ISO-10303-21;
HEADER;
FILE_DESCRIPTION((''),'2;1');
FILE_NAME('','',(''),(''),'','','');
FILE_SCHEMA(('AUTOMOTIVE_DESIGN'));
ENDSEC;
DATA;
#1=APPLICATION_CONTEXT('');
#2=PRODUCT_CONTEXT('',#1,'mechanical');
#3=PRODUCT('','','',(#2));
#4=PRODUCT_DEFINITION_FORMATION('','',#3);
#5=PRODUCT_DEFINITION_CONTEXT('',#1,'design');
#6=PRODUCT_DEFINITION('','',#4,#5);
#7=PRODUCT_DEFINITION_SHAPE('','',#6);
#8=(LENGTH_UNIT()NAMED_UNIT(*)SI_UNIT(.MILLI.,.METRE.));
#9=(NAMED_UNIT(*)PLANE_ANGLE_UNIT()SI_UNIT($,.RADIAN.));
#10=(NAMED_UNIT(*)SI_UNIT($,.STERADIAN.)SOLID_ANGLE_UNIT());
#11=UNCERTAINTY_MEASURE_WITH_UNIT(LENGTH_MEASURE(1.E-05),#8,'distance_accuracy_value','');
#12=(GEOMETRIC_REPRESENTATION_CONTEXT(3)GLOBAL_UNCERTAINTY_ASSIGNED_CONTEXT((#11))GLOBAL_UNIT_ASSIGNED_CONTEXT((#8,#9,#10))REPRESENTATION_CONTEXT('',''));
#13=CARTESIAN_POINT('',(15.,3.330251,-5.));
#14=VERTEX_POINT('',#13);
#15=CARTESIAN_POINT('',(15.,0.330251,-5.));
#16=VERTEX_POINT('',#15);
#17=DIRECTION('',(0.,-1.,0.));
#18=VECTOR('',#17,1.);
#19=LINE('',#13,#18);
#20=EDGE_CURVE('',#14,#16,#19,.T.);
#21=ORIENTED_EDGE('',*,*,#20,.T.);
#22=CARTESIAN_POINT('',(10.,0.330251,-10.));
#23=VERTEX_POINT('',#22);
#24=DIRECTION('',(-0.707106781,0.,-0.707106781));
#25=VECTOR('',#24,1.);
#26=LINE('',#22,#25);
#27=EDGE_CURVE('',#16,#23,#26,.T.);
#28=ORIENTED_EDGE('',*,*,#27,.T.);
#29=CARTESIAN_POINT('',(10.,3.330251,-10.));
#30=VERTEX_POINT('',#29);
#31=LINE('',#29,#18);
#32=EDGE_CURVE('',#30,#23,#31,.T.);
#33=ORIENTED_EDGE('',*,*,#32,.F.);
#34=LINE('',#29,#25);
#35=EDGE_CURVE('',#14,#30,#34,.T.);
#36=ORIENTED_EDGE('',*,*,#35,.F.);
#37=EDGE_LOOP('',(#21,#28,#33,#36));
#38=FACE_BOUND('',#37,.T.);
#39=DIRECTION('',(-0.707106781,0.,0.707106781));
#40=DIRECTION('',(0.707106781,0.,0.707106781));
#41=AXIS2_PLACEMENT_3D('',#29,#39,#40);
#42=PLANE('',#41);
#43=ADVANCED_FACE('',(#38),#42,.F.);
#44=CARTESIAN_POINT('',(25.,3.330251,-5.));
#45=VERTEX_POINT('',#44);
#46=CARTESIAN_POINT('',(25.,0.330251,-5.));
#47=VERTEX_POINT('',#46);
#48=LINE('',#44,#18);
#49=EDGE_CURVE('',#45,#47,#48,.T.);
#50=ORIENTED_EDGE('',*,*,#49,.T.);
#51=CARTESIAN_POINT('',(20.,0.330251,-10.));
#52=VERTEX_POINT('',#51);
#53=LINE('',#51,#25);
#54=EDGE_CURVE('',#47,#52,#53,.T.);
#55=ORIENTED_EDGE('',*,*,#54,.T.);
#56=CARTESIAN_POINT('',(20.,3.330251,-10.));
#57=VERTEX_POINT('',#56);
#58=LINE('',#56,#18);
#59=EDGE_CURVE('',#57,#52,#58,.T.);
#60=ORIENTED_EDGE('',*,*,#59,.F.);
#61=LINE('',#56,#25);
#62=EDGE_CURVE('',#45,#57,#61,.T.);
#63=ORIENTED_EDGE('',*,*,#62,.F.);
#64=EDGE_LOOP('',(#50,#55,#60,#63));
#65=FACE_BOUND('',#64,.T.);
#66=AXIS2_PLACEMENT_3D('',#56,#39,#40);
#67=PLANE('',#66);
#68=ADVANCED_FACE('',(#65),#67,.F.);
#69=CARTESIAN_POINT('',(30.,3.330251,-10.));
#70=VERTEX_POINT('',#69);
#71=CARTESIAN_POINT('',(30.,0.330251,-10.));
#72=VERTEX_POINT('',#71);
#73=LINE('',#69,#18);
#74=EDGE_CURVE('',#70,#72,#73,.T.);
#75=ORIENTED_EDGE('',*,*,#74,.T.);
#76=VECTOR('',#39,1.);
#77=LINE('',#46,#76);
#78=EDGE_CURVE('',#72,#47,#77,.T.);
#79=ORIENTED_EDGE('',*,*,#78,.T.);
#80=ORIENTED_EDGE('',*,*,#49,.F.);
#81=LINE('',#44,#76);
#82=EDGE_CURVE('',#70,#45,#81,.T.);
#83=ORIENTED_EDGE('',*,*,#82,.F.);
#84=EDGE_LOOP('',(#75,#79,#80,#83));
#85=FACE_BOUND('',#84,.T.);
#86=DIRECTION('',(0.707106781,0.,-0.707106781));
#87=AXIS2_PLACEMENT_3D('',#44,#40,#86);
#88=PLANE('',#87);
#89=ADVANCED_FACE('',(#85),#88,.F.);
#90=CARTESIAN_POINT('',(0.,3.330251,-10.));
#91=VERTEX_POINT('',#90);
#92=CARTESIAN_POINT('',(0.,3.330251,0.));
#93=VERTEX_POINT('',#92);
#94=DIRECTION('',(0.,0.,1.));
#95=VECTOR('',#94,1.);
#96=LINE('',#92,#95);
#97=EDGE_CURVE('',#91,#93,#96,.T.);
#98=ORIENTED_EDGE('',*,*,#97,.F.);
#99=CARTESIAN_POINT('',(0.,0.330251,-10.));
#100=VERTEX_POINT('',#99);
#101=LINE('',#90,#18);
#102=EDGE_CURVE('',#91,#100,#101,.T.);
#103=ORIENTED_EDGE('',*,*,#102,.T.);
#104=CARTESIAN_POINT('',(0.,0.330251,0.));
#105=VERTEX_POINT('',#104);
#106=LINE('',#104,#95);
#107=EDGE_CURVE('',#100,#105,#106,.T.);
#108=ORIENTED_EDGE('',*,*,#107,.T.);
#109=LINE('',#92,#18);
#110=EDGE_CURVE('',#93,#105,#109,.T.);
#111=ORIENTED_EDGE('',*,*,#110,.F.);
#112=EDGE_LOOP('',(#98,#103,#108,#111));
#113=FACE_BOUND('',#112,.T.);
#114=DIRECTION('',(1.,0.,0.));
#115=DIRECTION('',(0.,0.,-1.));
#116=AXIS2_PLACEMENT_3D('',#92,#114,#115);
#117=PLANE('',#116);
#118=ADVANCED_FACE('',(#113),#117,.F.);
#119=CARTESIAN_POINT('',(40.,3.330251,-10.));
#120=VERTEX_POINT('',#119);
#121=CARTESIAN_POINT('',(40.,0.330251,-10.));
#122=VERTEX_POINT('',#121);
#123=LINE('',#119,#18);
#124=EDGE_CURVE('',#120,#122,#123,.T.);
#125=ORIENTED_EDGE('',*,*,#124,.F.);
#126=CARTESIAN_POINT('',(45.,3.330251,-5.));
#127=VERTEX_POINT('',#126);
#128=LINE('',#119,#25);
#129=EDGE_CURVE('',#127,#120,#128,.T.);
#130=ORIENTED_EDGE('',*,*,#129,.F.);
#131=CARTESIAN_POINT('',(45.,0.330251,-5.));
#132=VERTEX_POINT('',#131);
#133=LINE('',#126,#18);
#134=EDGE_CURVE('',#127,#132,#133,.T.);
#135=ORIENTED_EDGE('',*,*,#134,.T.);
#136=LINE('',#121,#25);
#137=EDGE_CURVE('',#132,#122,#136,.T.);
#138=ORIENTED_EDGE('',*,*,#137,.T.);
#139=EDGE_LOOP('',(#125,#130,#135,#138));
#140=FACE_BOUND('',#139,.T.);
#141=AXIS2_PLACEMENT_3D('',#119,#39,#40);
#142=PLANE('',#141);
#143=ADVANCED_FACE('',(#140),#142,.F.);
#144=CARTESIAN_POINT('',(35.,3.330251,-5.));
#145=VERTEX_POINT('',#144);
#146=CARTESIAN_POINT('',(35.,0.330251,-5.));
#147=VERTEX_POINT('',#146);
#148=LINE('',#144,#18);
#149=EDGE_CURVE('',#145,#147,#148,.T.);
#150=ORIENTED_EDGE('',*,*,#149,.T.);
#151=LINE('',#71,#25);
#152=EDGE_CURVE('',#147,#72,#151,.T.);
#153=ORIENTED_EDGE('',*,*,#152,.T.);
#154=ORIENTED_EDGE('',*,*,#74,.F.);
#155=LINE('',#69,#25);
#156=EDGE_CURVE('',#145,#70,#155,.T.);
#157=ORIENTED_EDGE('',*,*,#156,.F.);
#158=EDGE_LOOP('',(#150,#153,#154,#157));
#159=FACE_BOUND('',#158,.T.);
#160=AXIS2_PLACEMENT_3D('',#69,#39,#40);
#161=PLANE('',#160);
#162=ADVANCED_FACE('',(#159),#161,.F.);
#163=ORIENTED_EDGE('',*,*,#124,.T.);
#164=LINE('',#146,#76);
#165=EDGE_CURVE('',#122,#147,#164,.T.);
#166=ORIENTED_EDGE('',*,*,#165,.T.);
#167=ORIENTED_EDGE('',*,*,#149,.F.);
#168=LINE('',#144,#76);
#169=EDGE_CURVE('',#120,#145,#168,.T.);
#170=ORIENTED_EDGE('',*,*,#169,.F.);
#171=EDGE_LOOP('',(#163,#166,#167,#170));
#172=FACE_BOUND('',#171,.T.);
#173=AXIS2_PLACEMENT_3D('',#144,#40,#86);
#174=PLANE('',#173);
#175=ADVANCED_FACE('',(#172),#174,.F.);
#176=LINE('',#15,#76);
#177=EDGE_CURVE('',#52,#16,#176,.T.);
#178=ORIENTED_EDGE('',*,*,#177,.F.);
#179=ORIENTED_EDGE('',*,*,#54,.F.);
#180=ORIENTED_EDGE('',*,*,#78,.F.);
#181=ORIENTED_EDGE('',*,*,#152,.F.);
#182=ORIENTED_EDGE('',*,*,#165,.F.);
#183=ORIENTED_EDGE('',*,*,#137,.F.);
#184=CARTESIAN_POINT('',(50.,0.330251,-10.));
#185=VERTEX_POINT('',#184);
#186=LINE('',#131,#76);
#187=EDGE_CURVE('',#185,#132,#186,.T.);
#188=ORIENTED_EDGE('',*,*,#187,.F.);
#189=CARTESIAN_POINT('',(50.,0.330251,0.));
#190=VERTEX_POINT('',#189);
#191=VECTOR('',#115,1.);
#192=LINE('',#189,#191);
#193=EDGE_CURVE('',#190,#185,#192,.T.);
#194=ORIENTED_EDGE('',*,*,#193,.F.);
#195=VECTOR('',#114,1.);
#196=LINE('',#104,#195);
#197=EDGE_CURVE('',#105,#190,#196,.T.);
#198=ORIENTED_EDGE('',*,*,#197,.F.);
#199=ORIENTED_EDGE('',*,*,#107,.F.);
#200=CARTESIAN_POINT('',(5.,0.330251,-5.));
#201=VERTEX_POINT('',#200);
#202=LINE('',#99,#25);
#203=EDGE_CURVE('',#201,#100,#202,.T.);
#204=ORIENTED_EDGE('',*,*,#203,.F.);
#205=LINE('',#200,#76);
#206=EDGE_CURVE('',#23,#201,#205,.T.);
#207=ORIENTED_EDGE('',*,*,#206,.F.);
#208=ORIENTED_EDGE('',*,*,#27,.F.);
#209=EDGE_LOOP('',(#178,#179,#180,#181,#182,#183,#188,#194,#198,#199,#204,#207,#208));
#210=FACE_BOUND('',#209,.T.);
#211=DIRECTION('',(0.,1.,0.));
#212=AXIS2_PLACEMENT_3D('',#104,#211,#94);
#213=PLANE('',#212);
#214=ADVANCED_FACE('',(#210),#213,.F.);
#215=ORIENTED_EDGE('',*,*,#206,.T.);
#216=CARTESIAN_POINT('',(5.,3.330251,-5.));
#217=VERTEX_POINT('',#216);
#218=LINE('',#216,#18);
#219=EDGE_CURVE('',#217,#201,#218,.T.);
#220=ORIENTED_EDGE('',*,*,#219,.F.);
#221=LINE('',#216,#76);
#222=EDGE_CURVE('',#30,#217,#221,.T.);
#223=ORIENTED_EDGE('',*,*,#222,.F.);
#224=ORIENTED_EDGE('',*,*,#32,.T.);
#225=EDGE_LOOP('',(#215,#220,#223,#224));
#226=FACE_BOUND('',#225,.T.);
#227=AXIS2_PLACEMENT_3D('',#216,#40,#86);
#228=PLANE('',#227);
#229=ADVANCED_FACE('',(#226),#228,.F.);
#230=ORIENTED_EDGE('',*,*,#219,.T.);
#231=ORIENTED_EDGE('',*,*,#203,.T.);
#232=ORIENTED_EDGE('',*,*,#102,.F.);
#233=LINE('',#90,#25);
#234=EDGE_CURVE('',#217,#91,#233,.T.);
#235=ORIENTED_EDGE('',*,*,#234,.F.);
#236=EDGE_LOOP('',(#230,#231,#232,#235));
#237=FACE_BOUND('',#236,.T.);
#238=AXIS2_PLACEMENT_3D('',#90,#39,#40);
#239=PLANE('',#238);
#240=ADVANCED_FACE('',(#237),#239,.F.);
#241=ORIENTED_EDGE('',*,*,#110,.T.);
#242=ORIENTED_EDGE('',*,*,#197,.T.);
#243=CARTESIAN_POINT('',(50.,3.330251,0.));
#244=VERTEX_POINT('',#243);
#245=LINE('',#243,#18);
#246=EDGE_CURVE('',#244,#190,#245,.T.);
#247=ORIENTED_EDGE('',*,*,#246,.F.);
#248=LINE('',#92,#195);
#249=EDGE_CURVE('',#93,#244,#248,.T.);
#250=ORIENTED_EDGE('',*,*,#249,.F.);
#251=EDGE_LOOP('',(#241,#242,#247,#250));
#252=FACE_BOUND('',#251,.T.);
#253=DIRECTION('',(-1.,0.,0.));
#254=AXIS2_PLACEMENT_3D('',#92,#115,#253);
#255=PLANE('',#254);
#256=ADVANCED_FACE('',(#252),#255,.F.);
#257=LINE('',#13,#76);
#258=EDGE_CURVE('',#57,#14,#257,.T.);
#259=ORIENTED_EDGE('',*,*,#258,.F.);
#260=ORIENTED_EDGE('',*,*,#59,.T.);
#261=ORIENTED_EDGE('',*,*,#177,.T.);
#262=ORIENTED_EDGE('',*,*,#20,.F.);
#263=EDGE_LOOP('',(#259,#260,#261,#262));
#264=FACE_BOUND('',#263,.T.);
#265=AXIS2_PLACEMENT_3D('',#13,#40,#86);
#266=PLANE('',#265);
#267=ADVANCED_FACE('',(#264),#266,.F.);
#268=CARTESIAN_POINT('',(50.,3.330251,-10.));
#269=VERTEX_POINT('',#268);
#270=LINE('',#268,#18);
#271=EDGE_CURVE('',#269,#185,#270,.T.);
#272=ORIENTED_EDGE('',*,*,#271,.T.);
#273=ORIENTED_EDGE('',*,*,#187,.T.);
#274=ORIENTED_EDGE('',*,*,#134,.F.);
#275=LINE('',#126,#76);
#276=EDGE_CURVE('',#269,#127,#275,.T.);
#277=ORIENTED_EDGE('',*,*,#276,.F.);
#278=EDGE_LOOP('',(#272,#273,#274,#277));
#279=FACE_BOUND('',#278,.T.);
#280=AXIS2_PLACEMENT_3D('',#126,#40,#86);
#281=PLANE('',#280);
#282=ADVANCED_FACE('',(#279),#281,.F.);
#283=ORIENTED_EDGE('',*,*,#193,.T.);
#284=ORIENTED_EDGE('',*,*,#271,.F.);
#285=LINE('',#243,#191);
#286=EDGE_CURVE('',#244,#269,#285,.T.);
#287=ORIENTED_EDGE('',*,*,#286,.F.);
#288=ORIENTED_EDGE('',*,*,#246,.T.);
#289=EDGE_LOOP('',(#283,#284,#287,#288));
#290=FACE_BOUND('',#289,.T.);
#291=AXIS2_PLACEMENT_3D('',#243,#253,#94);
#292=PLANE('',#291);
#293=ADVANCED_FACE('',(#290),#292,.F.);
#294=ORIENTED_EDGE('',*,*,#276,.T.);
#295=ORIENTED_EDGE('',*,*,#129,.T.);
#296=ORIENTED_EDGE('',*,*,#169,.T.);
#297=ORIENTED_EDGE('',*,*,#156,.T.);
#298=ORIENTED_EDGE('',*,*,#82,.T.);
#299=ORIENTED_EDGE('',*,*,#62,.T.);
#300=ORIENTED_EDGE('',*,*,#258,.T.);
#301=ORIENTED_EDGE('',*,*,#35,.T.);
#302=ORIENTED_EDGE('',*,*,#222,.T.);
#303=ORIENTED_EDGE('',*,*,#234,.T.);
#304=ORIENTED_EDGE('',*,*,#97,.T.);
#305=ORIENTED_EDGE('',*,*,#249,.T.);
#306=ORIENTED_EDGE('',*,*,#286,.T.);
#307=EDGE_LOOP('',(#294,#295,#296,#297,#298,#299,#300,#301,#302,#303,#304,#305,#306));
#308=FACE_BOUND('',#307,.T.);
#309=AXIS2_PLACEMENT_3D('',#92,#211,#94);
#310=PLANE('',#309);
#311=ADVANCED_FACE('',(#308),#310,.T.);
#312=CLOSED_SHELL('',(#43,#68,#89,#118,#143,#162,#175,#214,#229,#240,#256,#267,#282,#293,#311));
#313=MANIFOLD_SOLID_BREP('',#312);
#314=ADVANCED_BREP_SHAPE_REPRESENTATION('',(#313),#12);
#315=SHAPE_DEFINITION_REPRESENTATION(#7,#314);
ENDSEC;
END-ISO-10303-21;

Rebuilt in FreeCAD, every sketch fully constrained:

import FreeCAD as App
import Part
import Sketcher
Q = App.Units.Quantity


def add_polygon(sketch, points):
    """Adds a closed chain of lines whose ends are joined by coincident constraints."""
    first, n = sketch.GeometryCount, len(points)
    for a, b in zip(points, points[1:] + points[:1]):
        sketch.addGeometry(Part.LineSegment(App.Vector(*a, 0), App.Vector(*b, 0)), False)
    for i in range(n):
        sketch.addConstraint(Sketcher.Constraint("Coincident", first + i, 2, first + (i + 1) % n, 1))

doc = App.newDocument("Part")
body = doc.addObject("PartDesign::Body", "Body")

# Sketch on XZ plane
sketch1 = doc.addObject("Sketcher::SketchObject", "Sketch")
body.addObject(sketch1)
sketch1.AttachmentSupport = (doc.XZ_Plane, [""])
sketch1.MapMode = "FlatFace"
sketch1.AttachmentOffset = App.Placement(App.Vector(0, 0, -0.330251), App.Rotation())
add_polygon(sketch1, [(0, -10), (0, 0), (50, 0), (50, -10), (45, -5), (40, -10), (35, -5), (30, -10), (25, -5), (20, -10), (15, -5), (10, -10), (5, -5)])  # lines 0-12
sketch1.addConstraint(Sketcher.Constraint("Vertical", 0))
sketch1.addConstraint(Sketcher.Constraint("Horizontal", 1))
sketch1.addConstraint(Sketcher.Constraint("Vertical", 2))
sketch1.addConstraint(Sketcher.Constraint("Coincident", 0, 2, -1, 1))
sketch1.addConstraint(Sketcher.Constraint("Perpendicular", 3, 4))
sketch1.addConstraint(Sketcher.Constraint("Perpendicular", 4, 5))
sketch1.addConstraint(Sketcher.Constraint("Perpendicular", 5, 6))
sketch1.addConstraint(Sketcher.Constraint("Perpendicular", 6, 7))
sketch1.addConstraint(Sketcher.Constraint("Perpendicular", 7, 8))
sketch1.addConstraint(Sketcher.Constraint("Perpendicular", 8, 9))
sketch1.addConstraint(Sketcher.Constraint("Perpendicular", 9, 10))
sketch1.addConstraint(Sketcher.Constraint("Perpendicular", 10, 11))
sketch1.addConstraint(Sketcher.Constraint("Perpendicular", 11, 12))
sketch1.addConstraint(Sketcher.Constraint("Horizontal", 2, 2, 4, 2))
sketch1.addConstraint(Sketcher.Constraint("Horizontal", 3, 2, 5, 2))
sketch1.addConstraint(Sketcher.Constraint("Horizontal", 4, 2, 6, 2))
sketch1.addConstraint(Sketcher.Constraint("Horizontal", 5, 2, 7, 2))
sketch1.addConstraint(Sketcher.Constraint("Horizontal", 6, 2, 8, 2))
sketch1.addConstraint(Sketcher.Constraint("Horizontal", 7, 2, 9, 2))
sketch1.addConstraint(Sketcher.Constraint("Horizontal", 8, 2, 10, 2))
sketch1.addConstraint(Sketcher.Constraint("Horizontal", 9, 2, 11, 2))
sketch1.addConstraint(Sketcher.Constraint("Horizontal", 10, 2, 12, 2))
sketch1.addConstraint(Sketcher.Constraint("Equal", 3, 4))
sketch1.addConstraint(Sketcher.Constraint("DistanceX", 1, 1, 1, 2, Q("50 mm")))
sketch1.addConstraint(Sketcher.Constraint("DistanceY", 0, 1, 0, 2, Q("10 mm")))
pad1 = doc.addObject("PartDesign::Pad", "Pad")
body.addObject(pad1)
pad1.Profile = sketch1
pad1.Length = 3
pad1.Reversed = True

doc.recompute()
